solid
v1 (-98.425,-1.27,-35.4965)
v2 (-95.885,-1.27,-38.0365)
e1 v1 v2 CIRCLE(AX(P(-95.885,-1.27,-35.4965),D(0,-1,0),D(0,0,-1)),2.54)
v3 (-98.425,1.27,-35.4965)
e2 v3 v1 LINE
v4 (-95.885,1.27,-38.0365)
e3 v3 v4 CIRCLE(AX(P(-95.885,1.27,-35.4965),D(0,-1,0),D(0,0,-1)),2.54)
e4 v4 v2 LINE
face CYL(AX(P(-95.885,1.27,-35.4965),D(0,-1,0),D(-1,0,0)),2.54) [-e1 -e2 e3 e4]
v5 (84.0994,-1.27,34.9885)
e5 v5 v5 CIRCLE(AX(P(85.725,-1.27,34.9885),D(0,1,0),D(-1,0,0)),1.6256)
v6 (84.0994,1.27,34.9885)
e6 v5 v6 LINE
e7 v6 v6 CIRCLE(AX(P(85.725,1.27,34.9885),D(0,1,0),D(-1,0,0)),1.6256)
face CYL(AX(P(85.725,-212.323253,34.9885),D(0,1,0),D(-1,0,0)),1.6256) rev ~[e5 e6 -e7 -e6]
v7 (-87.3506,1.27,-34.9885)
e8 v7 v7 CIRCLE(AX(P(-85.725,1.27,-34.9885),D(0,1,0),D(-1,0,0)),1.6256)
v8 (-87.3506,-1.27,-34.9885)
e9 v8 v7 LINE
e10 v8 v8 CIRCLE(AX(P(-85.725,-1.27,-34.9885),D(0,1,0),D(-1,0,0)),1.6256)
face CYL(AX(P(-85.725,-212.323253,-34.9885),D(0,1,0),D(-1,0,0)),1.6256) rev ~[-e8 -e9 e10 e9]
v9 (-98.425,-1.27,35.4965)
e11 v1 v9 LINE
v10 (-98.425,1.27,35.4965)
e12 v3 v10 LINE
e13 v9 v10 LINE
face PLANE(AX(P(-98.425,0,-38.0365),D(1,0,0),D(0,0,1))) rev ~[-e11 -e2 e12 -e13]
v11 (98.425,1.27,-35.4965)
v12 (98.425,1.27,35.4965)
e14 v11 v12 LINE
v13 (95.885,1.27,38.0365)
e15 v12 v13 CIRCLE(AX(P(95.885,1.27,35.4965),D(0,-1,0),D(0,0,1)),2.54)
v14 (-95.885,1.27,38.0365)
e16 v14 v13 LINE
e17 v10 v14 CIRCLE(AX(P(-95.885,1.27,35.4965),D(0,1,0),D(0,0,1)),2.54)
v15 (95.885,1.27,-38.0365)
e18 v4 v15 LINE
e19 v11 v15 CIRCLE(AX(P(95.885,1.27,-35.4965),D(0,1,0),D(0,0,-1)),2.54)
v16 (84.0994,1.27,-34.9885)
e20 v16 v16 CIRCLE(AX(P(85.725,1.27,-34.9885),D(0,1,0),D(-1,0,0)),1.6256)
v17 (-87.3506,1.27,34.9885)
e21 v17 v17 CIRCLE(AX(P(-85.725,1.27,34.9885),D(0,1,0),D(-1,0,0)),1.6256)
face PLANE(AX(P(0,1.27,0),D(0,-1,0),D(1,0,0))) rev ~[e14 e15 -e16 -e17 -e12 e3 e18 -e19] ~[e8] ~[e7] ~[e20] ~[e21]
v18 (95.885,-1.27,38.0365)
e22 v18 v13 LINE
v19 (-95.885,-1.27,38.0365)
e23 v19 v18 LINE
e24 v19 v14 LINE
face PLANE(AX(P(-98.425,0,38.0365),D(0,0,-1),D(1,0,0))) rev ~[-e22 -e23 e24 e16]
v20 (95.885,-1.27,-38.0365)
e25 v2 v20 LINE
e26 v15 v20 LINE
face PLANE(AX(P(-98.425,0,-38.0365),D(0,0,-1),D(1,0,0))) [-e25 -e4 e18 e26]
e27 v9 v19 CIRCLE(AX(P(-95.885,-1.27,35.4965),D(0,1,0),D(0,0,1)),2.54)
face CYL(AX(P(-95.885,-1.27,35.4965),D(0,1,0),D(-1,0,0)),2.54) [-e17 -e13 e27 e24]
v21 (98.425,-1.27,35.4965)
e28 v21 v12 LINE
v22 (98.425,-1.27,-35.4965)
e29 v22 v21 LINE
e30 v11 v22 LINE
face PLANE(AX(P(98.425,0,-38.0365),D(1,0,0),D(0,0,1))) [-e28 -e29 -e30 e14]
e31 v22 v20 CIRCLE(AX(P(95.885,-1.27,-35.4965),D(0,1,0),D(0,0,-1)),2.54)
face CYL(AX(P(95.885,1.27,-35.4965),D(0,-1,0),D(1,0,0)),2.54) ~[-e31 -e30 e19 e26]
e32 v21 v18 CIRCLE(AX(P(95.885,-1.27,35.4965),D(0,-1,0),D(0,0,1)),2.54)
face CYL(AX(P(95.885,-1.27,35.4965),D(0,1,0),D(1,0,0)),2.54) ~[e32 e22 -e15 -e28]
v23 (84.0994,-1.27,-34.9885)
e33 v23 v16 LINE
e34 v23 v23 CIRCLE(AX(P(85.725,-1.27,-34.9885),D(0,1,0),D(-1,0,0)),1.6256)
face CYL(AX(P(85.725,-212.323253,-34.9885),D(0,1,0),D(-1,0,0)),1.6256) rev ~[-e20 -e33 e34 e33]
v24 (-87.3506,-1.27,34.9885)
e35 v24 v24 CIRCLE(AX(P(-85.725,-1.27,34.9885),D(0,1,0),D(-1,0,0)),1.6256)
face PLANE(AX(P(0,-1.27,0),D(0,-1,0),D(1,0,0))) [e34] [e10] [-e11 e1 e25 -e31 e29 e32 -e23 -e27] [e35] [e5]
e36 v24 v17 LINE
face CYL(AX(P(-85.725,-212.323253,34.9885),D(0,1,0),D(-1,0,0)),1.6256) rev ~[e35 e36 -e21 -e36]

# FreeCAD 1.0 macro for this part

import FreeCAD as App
import Part
import Sketcher

V = App.Vector
Q = App.Units.Quantity


def edges_at(feature, points):
    """Names of the edges that pass closest to the given points."""
    edges = feature.Shape.Edges
    near = lambda p: min(range(len(edges)), key=lambda i: edges[i].distToShape(Part.Vertex(*p))[0])
    return sorted({f"Edge{near(p) + 1}" for p in points})


def add_polygon(sketch, points):
    """Adds a closed chain of lines whose ends are joined by coincident constraints."""
    first, n = sketch.GeometryCount, len(points)
    for a, b in zip(points, points[1:] + points[:1]):
        sketch.addGeometry(Part.LineSegment(App.Vector(*a, 0), App.Vector(*b, 0)), False)
    for i in range(n):
        sketch.addConstraint(Sketcher.Constraint("Coincident", first + i, 2, first + (i + 1) % n, 1))

doc = App.newDocument("Part")
body = doc.addObject("PartDesign::Body", "Body")

# Sketch on XZ plane
sketch1 = body.newObject("Sketcher::SketchObject", "Sketch")
sketch1.AttachmentSupport = (doc.getObject("XZ_Plane"), [""])
sketch1.MapMode = "FlatFace"
add_polygon(sketch1, [(-98, 38), (-98, -38), (98, -38), (98, 38)])  # lines 0-3
sketch1.addConstraint(Sketcher.Constraint("Vertical", 0))
sketch1.addConstraint(Sketcher.Constraint("Horizontal", 1))
sketch1.addConstraint(Sketcher.Constraint("Vertical", 2))
sketch1.addConstraint(Sketcher.Constraint("Horizontal", 3))
sketch1.addConstraint(Sketcher.Constraint("Symmetric", 0, 2, 2, 2, -1, 1))
sketch1.addConstraint(Sketcher.Constraint("DistanceX", 1, 1, 1, 2, Q("7.75 in")))
sketch1.addConstraint(Sketcher.Constraint("DistanceY", 0, 2, 0, 1, Q("2.995 in")))
pad1 = body.newObject("PartDesign::Pad", "Pad")
pad1.Profile = sketch1
pad1.Length = Q("0.1 in")
pad1.Midplane = True
doc.recompute()

fillet = body.newObject("PartDesign::Fillet", "Fillet")
fillet.Base = (pad1, edges_at(pad1, [
    (-98.425, 0, 38.036),
    (-98.425, 0, -38.036),
    (98.425, 0, -38.036),
    (98.425, 0, 38.036),
]))
fillet.Radius = Q("0.1 in")

# Sketch on XZ plane
sketch2 = body.newObject("Sketcher::SketchObject", "Sketch001")
sketch2.AttachmentSupport = (doc.getObject("XZ_Plane"), [""])
sketch2.MapMode = "FlatFace"
sketch2.AttachmentOffset = App.Placement(V(0, 0, 0.05 * 25.4), App.Rotation())
sketch2.addGeometry(Part.Circle(V(85.7, 35, 0), V(0, 0, 1), 1.6), False)
sketch2.addGeometry(Part.Circle(V(85.7, -35, 0), V(0, 0, 1), 1.6), False)
sketch2.addGeometry(Part.Circle(V(-85.7, -35, 0), V(0, 0, 1), 1.6), False)
sketch2.addGeometry(Part.Circle(V(-85.7, 35, 0), V(0, 0, 1), 1.6), False)
sketch2.addConstraint(Sketcher.Constraint("Equal", 0, 1))
sketch2.addConstraint(Sketcher.Constraint("Equal", 1, 2))
sketch2.addConstraint(Sketcher.Constraint("Equal", 2, 3))
sketch2.addConstraint(Sketcher.Constraint("Symmetric", 0, 3, 2, 3, -1, 1))
sketch2.addConstraint(Sketcher.Constraint("Symmetric", 1, 3, 3, 3, -1, 1))
sketch2.addConstraint(Sketcher.Constraint("Symmetric", 1, 3, 2, 3, -2))
sketch2.addConstraint(Sketcher.Constraint("Diameter", 0, Q("0.128 in")))
sketch2.addConstraint(Sketcher.Constraint("DistanceX", 2, 3, 1, 3, Q("6.75 in")))
sketch2.addConstraint(Sketcher.Constraint("DistanceY", 1, 3, 0, 3, Q("2.755 in")))
doc.recompute()
hole = body.newObject("PartDesign::Hole", "Hole")
hole.Profile = sketch2
hole.ThreadType = "None"
hole.Diameter = Q("0.128 in")
hole.DepthType = "ThroughAll"

doc.recompute()
